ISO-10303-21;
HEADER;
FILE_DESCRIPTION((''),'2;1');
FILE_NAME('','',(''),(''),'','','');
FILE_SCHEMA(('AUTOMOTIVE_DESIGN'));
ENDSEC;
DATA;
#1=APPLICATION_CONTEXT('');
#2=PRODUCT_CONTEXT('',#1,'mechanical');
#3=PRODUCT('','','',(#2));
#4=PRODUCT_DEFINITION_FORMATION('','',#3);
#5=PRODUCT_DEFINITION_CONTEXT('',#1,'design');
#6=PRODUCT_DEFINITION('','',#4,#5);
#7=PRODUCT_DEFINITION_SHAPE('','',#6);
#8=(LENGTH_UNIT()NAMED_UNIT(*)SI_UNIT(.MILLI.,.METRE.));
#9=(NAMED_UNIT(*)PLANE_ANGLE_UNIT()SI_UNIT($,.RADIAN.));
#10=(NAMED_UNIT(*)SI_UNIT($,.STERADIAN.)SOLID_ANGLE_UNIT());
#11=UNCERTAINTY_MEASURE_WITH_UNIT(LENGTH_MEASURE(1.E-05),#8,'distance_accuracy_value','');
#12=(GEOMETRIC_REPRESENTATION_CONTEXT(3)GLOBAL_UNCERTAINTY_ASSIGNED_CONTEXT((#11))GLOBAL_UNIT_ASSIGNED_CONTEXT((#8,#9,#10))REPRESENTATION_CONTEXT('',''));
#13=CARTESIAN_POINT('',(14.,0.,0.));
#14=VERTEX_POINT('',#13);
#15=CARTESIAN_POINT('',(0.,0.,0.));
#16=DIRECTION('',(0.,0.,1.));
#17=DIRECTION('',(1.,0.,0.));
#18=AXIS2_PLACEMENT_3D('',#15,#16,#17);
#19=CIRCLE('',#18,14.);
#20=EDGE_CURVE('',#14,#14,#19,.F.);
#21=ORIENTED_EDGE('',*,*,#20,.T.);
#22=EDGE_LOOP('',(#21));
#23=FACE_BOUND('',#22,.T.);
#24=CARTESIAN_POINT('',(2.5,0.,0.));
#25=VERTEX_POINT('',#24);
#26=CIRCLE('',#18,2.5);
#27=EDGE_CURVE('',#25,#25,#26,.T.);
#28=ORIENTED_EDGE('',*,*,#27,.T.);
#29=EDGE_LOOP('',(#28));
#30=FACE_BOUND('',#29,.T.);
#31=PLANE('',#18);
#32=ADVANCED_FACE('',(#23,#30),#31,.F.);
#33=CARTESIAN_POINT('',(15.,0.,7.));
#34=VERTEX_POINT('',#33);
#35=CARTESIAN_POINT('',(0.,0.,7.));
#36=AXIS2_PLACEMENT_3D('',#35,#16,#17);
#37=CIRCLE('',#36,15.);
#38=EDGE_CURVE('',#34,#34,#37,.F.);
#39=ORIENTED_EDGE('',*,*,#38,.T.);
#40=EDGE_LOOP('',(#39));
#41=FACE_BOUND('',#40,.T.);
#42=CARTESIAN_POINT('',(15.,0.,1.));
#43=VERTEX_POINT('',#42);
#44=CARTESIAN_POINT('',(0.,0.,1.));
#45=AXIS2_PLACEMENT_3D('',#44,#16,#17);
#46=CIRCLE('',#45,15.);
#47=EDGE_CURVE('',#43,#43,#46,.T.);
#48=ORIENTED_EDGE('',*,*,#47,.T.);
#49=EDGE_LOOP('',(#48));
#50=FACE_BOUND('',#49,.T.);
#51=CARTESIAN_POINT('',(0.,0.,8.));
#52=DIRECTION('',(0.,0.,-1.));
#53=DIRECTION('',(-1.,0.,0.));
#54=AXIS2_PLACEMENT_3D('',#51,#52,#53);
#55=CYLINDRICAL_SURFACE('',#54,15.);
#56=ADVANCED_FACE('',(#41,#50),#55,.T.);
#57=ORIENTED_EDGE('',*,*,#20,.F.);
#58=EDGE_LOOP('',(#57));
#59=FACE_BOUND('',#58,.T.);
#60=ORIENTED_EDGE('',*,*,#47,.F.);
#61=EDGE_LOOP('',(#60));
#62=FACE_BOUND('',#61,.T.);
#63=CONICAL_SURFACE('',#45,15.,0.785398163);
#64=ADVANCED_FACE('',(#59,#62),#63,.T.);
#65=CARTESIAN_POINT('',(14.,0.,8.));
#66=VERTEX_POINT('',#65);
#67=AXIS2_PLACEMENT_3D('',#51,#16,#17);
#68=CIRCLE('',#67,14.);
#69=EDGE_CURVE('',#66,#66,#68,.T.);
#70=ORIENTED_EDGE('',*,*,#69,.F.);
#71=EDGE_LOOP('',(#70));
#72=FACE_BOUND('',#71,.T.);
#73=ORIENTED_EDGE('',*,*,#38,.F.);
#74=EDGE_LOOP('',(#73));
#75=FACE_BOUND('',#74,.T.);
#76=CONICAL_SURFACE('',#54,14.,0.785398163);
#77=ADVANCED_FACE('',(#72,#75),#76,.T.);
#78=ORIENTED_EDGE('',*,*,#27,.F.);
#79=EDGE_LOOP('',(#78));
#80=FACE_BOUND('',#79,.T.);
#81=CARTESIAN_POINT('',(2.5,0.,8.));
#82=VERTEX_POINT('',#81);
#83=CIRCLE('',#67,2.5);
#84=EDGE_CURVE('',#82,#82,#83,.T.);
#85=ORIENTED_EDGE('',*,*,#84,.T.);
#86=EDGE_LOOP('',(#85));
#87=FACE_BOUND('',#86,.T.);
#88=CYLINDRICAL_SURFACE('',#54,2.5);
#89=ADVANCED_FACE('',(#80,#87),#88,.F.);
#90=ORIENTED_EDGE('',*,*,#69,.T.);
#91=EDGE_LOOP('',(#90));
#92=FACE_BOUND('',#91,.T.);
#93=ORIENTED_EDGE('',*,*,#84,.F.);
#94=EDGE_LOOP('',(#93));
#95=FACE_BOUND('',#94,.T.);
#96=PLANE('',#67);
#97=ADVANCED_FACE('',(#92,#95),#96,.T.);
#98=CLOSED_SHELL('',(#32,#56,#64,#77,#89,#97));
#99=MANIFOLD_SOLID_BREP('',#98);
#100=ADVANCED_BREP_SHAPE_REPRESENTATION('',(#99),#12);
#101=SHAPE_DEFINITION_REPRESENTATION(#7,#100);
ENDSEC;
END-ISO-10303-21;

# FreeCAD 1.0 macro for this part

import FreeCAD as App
import Part
import Sketcher
from FreeCAD import Vector
Q = App.Units.Quantity


def edges_at(feature, points):
    """Names of the edges that pass closest to the given points."""
    edges = feature.Shape.Edges
    near = lambda p: min(range(len(edges)), key=lambda i: edges[i].distToShape(Part.Vertex(*p))[0])
    return sorted({f"Edge{near(p) + 1}" for p in points})

doc = App.newDocument("Part")
body = doc.addObject("PartDesign::Body", "Body")

# Sketch on XY plane
sketch1 = body.newObject("Sketcher::SketchObject", "Sketch")
sketch1.AttachmentSupport = (doc.getObject("XY_Plane"), [""])
sketch1.MapMode = "FlatFace"
sketch1.addGeometry(Part.Circle(Vector(0, 0, 0), Vector(0, 0, 1), 15), False)
sketch1.addGeometry(Part.Circle(Vector(0, 0, 0), Vector(0, 0, 1), 2.5), False)
sketch1.addConstraint(Sketcher.Constraint("Coincident", 0, 3, -1, 1))
sketch1.addConstraint(Sketcher.Constraint("Coincident", 1, 3, -1, 1))
sketch1.addConstraint(Sketcher.Constraint("Diameter", 0, Q("30 mm")))
sketch1.addConstraint(Sketcher.Constraint("Diameter", 1, Q("5 mm")))
pad1 = body.newObject("PartDesign::Pad", "Pad")
pad1.Profile = sketch1
pad1.Length = 8
doc.recompute()

chamfer = body.newObject("PartDesign::Chamfer", "Chamfer")
chamfer.Base = (pad1, edges_at(pad1, [(-15, 0, 0), (-15, 0, 8)]))
chamfer.Size = 1

doc.recompute()
